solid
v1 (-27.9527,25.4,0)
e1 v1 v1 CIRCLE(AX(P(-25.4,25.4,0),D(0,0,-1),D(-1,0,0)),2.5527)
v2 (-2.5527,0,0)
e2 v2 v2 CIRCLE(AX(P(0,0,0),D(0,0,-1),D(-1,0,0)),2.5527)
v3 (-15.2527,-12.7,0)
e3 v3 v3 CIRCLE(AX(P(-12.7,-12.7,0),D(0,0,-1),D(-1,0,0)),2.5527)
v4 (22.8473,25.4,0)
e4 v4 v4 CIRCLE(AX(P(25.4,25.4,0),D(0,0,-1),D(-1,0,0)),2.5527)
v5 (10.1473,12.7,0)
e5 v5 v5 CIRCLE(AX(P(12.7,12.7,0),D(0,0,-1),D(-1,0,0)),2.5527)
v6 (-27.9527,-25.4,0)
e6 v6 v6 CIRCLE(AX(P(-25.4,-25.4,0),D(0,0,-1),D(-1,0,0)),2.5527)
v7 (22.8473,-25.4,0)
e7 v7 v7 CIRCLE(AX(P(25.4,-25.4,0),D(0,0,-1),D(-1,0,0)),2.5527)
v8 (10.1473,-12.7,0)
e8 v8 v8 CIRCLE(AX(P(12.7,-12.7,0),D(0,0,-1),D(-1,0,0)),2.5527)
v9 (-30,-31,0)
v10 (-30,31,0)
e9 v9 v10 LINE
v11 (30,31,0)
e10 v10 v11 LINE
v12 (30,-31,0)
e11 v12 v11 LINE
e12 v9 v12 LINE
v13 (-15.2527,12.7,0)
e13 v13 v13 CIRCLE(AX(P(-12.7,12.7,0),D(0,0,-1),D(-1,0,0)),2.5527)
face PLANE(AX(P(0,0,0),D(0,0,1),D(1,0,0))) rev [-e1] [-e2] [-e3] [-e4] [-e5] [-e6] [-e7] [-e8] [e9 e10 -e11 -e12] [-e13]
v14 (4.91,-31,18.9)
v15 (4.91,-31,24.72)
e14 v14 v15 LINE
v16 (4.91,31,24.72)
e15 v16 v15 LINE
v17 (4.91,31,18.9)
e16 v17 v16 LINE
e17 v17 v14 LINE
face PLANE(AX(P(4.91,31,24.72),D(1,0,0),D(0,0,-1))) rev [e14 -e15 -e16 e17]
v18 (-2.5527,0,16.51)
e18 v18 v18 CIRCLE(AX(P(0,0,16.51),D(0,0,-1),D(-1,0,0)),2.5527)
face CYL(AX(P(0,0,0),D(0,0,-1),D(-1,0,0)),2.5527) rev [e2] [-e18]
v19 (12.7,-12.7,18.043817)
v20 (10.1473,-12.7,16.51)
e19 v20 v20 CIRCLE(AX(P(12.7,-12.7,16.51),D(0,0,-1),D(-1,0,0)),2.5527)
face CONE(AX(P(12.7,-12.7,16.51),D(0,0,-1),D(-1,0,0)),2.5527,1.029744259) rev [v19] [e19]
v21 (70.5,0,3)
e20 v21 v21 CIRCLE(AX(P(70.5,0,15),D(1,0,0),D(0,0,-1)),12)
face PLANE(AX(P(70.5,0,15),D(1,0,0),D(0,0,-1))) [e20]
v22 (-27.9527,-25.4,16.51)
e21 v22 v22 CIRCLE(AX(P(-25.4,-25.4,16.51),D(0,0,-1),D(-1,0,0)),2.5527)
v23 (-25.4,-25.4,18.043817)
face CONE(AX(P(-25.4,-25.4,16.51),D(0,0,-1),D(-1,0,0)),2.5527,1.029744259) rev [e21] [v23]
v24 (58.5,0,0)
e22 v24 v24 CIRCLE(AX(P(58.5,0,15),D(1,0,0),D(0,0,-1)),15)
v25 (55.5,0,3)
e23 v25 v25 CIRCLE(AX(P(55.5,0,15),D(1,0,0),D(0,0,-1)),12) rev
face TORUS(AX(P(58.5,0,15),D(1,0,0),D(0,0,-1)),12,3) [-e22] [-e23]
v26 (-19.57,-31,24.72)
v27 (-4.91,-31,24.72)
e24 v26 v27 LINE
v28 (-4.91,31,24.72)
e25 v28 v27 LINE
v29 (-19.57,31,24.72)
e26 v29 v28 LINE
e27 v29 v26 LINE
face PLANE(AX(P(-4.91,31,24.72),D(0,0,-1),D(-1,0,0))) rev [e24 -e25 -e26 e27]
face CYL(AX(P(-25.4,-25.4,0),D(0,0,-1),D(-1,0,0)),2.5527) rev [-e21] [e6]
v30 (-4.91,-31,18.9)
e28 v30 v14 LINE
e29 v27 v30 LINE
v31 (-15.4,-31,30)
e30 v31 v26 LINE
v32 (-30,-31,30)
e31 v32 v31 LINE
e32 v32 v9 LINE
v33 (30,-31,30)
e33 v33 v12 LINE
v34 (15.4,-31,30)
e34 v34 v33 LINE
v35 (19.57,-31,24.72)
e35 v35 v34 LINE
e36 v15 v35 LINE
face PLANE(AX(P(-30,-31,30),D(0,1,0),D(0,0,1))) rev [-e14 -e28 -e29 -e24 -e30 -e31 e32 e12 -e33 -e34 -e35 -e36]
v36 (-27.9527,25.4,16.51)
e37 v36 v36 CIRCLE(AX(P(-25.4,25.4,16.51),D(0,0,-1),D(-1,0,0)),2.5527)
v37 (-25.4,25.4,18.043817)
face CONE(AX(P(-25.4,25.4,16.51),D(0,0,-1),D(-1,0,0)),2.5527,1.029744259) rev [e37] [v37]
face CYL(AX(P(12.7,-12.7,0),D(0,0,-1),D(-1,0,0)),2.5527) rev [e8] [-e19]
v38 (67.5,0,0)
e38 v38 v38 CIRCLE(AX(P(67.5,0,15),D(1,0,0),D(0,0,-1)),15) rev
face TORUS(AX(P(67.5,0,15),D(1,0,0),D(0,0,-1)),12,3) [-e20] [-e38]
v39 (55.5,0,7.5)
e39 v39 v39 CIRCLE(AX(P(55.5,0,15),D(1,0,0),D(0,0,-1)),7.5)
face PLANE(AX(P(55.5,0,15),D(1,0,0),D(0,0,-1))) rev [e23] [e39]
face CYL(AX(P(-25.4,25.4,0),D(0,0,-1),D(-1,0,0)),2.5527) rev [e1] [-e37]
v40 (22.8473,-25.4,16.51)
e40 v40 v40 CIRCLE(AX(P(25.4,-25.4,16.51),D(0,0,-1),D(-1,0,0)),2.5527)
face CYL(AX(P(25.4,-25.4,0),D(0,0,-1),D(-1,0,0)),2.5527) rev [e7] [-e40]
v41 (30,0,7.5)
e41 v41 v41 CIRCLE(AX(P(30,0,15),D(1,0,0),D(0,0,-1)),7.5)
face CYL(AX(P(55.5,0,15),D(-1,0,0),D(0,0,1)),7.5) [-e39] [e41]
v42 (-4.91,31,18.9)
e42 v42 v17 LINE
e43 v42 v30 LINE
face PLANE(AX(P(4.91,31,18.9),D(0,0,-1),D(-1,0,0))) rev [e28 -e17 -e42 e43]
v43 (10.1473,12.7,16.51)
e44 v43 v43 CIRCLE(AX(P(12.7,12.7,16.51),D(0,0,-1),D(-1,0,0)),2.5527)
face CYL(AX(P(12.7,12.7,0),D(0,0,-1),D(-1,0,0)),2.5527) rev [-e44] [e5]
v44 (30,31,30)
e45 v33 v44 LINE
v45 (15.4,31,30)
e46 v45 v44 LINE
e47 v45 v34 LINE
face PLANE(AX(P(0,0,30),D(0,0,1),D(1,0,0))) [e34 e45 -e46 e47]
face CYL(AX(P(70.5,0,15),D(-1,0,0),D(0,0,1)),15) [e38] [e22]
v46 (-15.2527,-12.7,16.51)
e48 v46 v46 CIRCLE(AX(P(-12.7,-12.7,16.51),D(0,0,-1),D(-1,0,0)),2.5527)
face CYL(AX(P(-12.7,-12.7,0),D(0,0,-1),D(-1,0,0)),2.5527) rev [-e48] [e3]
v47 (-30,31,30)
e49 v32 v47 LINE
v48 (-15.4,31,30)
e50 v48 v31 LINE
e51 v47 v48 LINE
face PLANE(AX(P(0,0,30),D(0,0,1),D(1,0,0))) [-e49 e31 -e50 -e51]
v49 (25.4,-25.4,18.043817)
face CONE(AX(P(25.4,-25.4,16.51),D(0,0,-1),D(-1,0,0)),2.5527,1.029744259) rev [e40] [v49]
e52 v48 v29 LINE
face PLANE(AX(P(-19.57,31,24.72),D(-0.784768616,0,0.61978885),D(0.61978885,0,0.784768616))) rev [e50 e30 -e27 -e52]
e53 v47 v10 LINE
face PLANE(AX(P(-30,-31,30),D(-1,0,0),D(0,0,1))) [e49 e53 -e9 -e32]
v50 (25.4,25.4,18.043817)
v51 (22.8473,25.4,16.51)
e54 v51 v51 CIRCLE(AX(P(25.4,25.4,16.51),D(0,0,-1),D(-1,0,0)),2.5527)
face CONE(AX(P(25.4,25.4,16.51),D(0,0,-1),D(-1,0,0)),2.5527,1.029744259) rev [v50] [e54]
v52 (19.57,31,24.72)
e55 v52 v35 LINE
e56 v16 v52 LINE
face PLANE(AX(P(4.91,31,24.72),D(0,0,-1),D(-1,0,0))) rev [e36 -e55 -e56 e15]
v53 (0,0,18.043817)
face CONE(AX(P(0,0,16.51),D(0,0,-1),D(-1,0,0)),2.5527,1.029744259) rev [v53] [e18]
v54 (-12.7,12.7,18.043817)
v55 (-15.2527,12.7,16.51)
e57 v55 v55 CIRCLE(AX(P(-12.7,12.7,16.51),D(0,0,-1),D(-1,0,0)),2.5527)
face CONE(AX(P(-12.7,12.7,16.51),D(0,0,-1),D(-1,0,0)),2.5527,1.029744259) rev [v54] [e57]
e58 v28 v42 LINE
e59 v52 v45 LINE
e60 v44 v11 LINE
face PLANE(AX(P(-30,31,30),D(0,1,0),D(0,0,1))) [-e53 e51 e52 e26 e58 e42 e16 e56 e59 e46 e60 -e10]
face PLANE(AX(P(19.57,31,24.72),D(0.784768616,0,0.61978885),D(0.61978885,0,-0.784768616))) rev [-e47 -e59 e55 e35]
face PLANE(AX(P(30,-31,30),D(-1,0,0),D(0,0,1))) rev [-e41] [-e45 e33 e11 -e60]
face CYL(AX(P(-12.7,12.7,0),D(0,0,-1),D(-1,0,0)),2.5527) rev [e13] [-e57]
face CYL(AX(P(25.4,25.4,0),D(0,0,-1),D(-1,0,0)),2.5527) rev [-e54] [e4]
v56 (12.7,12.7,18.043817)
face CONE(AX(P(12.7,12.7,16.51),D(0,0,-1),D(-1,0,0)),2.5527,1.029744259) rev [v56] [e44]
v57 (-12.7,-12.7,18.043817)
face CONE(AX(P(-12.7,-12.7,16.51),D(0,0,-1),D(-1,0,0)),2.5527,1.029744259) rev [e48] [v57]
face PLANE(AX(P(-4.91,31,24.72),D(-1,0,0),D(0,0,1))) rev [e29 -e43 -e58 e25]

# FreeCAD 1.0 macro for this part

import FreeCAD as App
import Part
import Sketcher

V = App.Vector


def edges_at(feature, points):
    """Names of the edges that pass closest to the given points."""
    edges = feature.Shape.Edges
    near = lambda p: min(range(len(edges)), key=lambda i: edges[i].distToShape(Part.Vertex(*p))[0])
    return sorted({f"Edge{near(p) + 1}" for p in points})

doc = App.newDocument("Part")
body = doc.addObject("PartDesign::Body", "Body")

sketch1 = body.newObject("Sketcher::SketchObject", "Sketch")
sketch1.AttachmentSupport = (doc.getObject("XY_Plane"), [""])
sketch1.MapMode = "FlatFace"
sketch1.addGeometry(Part.LineSegment(V(-30, 31, 0), V(-30, -31, 0)), False)
sketch1.addGeometry(Part.LineSegment(V(-30, -31, 0), V(30, -31, 0)), False)
sketch1.addGeometry(Part.LineSegment(V(30, -31, 0), V(30, 31, 0)), False)
sketch1.addGeometry(Part.LineSegment(V(30, 31, 0), V(-30, 31, 0)), False)
sketch1.addConstraint(Sketcher.Constraint("Coincident", 0, 2, 1, 1))
sketch1.addConstraint(Sketcher.Constraint("Coincident", 1, 2, 2, 1))
sketch1.addConstraint(Sketcher.Constraint("Coincident", 2, 2, 3, 1))
sketch1.addConstraint(Sketcher.Constraint("Coincident", 3, 2, 0, 1))
sketch1.addConstraint(Sketcher.Constraint("Vertical", 0))
sketch1.addConstraint(Sketcher.Constraint("Horizontal", 1))
sketch1.addConstraint(Sketcher.Constraint("Vertical", 2))
sketch1.addConstraint(Sketcher.Constraint("Horizontal", 3))
sketch1.addConstraint(Sketcher.Constraint("Symmetric", 0, 2, 2, 2, -1, 1))
sketch1.addConstraint(Sketcher.Constraint("DistanceX", 1, 1, 1, 2, 60.0))
sketch1.addConstraint(Sketcher.Constraint("DistanceY", 0, 2, 0, 1, 62.0))
pad1 = body.newObject("PartDesign::Pad", "Pad")
pad1.Profile = sketch1
pad1.Length = 30

sketch2 = body.newObject("Sketcher::SketchObject", "Sketch001")
sketch2.AttachmentSupport = (doc.getObject("YZ_Plane"), [""])
sketch2.MapMode = "FlatFace"
sketch2.AttachmentOffset = App.Placement(V(0, 0, 30), App.Rotation())
sketch2.addGeometry(Part.Circle(V(0, 15, 0), V(0, 0, 1), 8), False)
sketch2.addConstraint(Sketcher.Constraint("PointOnObject", 0, 3, -2))
sketch2.addConstraint(Sketcher.Constraint("Diameter", 0, 15.0))
sketch2.addConstraint(Sketcher.Constraint("DistanceY", -1, 1, 0, 3, 15.0))
pad2 = body.newObject("PartDesign::Pad", "Pad001")
pad2.Profile = sketch2
pad2.Length = 25.5

sketch3 = body.newObject("Sketcher::SketchObject", "Sketch002")
sketch3.AttachmentSupport = (doc.getObject("YZ_Plane"), [""])
sketch3.MapMode = "FlatFace"
sketch3.AttachmentOffset = App.Placement(V(0, 0, 55.5), App.Rotation())
sketch3.addGeometry(Part.Circle(V(0, 15, 0), V(0, 0, 1), 15), False)
sketch3.addConstraint(Sketcher.Constraint("PointOnObject", 0, 3, -2))
sketch3.addConstraint(Sketcher.Constraint("Diameter", 0, 30.0))
sketch3.addConstraint(Sketcher.Constraint("DistanceY", -1, 1, 0, 3, 15.0))
pad3 = body.newObject("PartDesign::Pad", "Pad002")
pad3.Profile = sketch3
pad3.Length = 15
doc.recompute()

fillet = body.newObject("PartDesign::Fillet", "Fillet")
fillet.Base = (pad3, edges_at(pad3, [(55.5, 0, 30), (70.5, 0, 30)]))
fillet.Radius = 3

sketch4 = body.newObject("Sketcher::SketchObject", "Sketch003")
sketch4.AttachmentSupport = (doc.getObject("XY_Plane"), [""])
sketch4.MapMode = "FlatFace"
sketch4.addGeometry(Part.LineSegment(V(-30, 31, 0), V(-30, -31, 0)), False)
sketch4.addGeometry(Part.LineSegment(V(-30, -31, 0), V(30, -31, 0)), False)
sketch4.addGeometry(Part.LineSegment(V(30, -31, 0), V(30, 31, 0)), False)
sketch4.addGeometry(Part.LineSegment(V(30, 31, 0), V(-30, 31, 0)), False)
sketch4.addGeometry(Part.Circle(V(-25.4, -25.4, 0), V(0, 0, 1), 3.2), False)
sketch4.addGeometry(Part.Circle(V(-12.7, -12.7, 0), V(0, 0, 1), 3.2), False)
sketch4.addGeometry(Part.Circle(V(25.4, -25.4, 0), V(0, 0, 1), 3.2), False)
sketch4.addGeometry(Part.Circle(V(12.7, -12.7, 0), V(0, 0, 1), 3.2), False)
sketch4.addGeometry(Part.Circle(V(-12.7, 12.7, 0), V(0, 0, 1), 3.2), False)
sketch4.addGeometry(Part.Circle(V(-25.4, 25.4, 0), V(0, 0, 1), 3.2), False)
sketch4.addGeometry(Part.Circle(V(0, 0, 0), V(0, 0, 1), 3.2), False)
sketch4.addGeometry(Part.Circle(V(12.7, 12.7, 0), V(0, 0, 1), 3.2), False)
sketch4.addGeometry(Part.Circle(V(25.4, 25.4, 0), V(0, 0, 1), 3.2), False)
sketch4.addConstraint(Sketcher.Constraint("Coincident", 0, 2, 1, 1))
sketch4.addConstraint(Sketcher.Constraint("Coincident", 1, 2, 2, 1))
sketch4.addConstraint(Sketcher.Constraint("Coincident", 2, 2, 3, 1))
sketch4.addConstraint(Sketcher.Constraint("Coincident", 3, 2, 0, 1))
sketch4.addConstraint(Sketcher.Constraint("Vertical", 0))
sketch4.addConstraint(Sketcher.Constraint("Horizontal", 1))
sketch4.addConstraint(Sketcher.Constraint("Vertical", 2))
sketch4.addConstraint(Sketcher.Constraint("Horizontal", 3))
sketch4.addConstraint(Sketcher.Constraint("Coincident", 10, 3, -1, 1))
sketch4.addConstraint(Sketcher.Constraint("Equal", 4, 5))
sketch4.addConstraint(Sketcher.Constraint("Equal", 5, 6))
sketch4.addConstraint(Sketcher.Constraint("Equal", 6, 7))
sketch4.addConstraint(Sketcher.Constraint("Equal", 7, 8))
sketch4.addConstraint(Sketcher.Constraint("Equal", 8, 9))
sketch4.addConstraint(Sketcher.Constraint("Equal", 9, 10))
sketch4.addConstraint(Sketcher.Constraint("Equal", 10, 11))
sketch4.addConstraint(Sketcher.Constraint("Equal", 11, 12))
sketch4.addConstraint(Sketcher.Constraint("Symmetric", 7, 3, 8, 3, -1, 1))
sketch4.addConstraint(Sketcher.Constraint("Symmetric", 6, 3, 9, 3, -1, 1))
sketch4.addConstraint(Sketcher.Constraint("Symmetric", 5, 3, 11, 3, -1, 1))
sketch4.addConstraint(Sketcher.Constraint("Symmetric", 4, 3, 12, 3, -1, 1))
sketch4.addConstraint(Sketcher.Constraint("Symmetric", 0, 2, 2, 2, -1, 1))
sketch4.addConstraint(Sketcher.Constraint("Symmetric", 4, 3, 6, 3, -2))
sketch4.addConstraint(Sketcher.Constraint("Symmetric", 5, 3, 7, 3, -2))
sketch4.addConstraint(Sketcher.Constraint("Diameter", 4, 6.35))
sketch4.addConstraint(Sketcher.Constraint("DistanceX", 1, 1, 1, 2, 60.0))
sketch4.addConstraint(Sketcher.Constraint("DistanceY", 0, 2, 0, 1, 62.0))
sketch4.addConstraint(Sketcher.Constraint("DistanceX", 4, 3, -1, 1, 25.4))
sketch4.addConstraint(Sketcher.Constraint("DistanceY", 4, 3, -1, 1, 25.4))
sketch4.addConstraint(Sketcher.Constraint("DistanceX", 5, 3, -1, 1, 12.7))
sketch4.addConstraint(Sketcher.Constraint("DistanceY", 5, 3, -1, 1, 12.7))
pad4 = body.newObject("PartDesign::Pad", "Pad003")
pad4.Profile = sketch4
pad4.Length = 20

sketch5 = body.newObject("Sketcher::SketchObject", "Sketch004")
sketch5.AttachmentSupport = (doc.getObject("XY_Plane"), [""])
sketch5.MapMode = "FlatFace"
sketch5.addGeometry(Part.Circle(V(25.4, 25.4, 0), V(0, 0, 1), 2.6), False)
sketch5.addGeometry(Part.Circle(V(-25.4, 25.4, 0), V(0, 0, 1), 2.6), False)
sketch5.addGeometry(Part.Circle(V(-25.4, -25.4, 0), V(0, 0, 1), 2.6), False)
sketch5.addGeometry(Part.Circle(V(25.4, -25.4, 0), V(0, 0, 1), 2.6), False)
sketch5.addConstraint(Sketcher.Constraint("Equal", 0, 1))
sketch5.addConstraint(Sketcher.Constraint("Equal", 1, 2))
sketch5.addConstraint(Sketcher.Constraint("Equal", 2, 3))
sketch5.addConstraint(Sketcher.Constraint("Symmetric", 0, 3, 2, 3, -1, 1))
sketch5.addConstraint(Sketcher.Constraint("Symmetric", 1, 3, 3, 3, -1, 1))
sketch5.addConstraint(Sketcher.Constraint("Symmetric", 0, 3, 1, 3, -2))
sketch5.addConstraint(Sketcher.Constraint("Diameter", 0, 5.1054))
sketch5.addConstraint(Sketcher.Constraint("DistanceX", -1, 1, 0, 3, 25.4))
sketch5.addConstraint(Sketcher.Constraint("DistanceY", -1, 1, 0, 3, 25.4))
doc.recompute()
hole = body.newObject("PartDesign::Hole", "Hole")
hole.Profile = sketch5
hole.ThreadType = "None"
hole.Diameter = 5.1054
hole.DepthType = "Dimension"
hole.Depth = 16.51
hole.DrillPoint = "Angled"
hole.DrillPointAngle = 118
hole.Reversed = True

sketch6 = body.newObject("Sketcher::SketchObject", "Sketch005")
sketch6.AttachmentSupport = (doc.getObject("XY_Plane"), [""])
sketch6.MapMode = "FlatFace"
sketch6.addGeometry(Part.Circle(V(12.7, 12.7, 0), V(0, 0, 1), 2.6), False)
sketch6.addGeometry(Part.Circle(V(0, 0, 0), V(0, 0, 1), 2.6), False)
sketch6.addGeometry(Part.Circle(V(-12.7, 12.7, 0), V(0, 0, 1), 2.6), False)
sketch6.addGeometry(Part.Circle(V(-12.7, -12.7, 0), V(0, 0, 1), 2.6), False)
sketch6.addGeometry(Part.Circle(V(12.7, -12.7, 0), V(0, 0, 1), 2.6), False)
sketch6.addConstraint(Sketcher.Constraint("Coincident", 1, 3, -1, 1))
sketch6.addConstraint(Sketcher.Constraint("Equal", 0, 1))
sketch6.addConstraint(Sketcher.Constraint("Equal", 1, 2))
sketch6.addConstraint(Sketcher.Constraint("Equal", 2, 3))
sketch6.addConstraint(Sketcher.Constraint("Equal", 3, 4))
sketch6.addConstraint(Sketcher.Constraint("Symmetric", 0, 3, 3, 3, -1, 1))
sketch6.addConstraint(Sketcher.Constraint("Symmetric", 2, 3, 4, 3, -1, 1))
sketch6.addConstraint(Sketcher.Constraint("Symmetric", 0, 3, 2, 3, -2))
sketch6.addConstraint(Sketcher.Constraint("Diameter", 0, 5.1054))
sketch6.addConstraint(Sketcher.Constraint("DistanceX", -1, 1, 0, 3, 12.7))
sketch6.addConstraint(Sketcher.Constraint("DistanceY", -1, 1, 0, 3, 12.7))
doc.recompute()
hole2 = body.newObject("PartDesign::Hole", "Hole001")
hole2.Profile = sketch6
hole2.ThreadType = "None"
hole2.Diameter = 5.1054
hole2.DepthType = "Dimension"
hole2.Depth = 16.51
hole2.DrillPoint = "Angled"
hole2.DrillPointAngle = 118
hole2.Reversed = True

sketch7 = body.newObject("Sketcher::SketchObject", "Sketch006")
sketch7.AttachmentSupport = (doc.getObject("XZ_Plane"), [""])
sketch7.MapMode = "FlatFace"
sketch7.AttachmentOffset = App.Placement(V(0, 0, 31), App.Rotation())
sketch7.addGeometry(Part.LineSegment(V(-20, 25, 0), V(-5, 25, 0)), False)
sketch7.addGeometry(Part.LineSegment(V(-5, 25, 0), V(-5, 19, 0)), False)
sketch7.addGeometry(Part.LineSegment(V(-5, 19, 0), V(5, 19, 0)), False)
sketch7.addGeometry(Part.LineSegment(V(5, 19, 0), V(5, 25, 0)), False)
sketch7.addGeometry(Part.LineSegment(V(5, 25, 0), V(20, 25, 0)), False)
sketch7.addGeometry(Part.LineSegment(V(20, 25, 0), V(15, 30, 0)), False)
sketch7.addGeometry(Part.LineSegment(V(15, 30, 0), V(-15, 30, 0)), False)
sketch7.addGeometry(Part.LineSegment(V(-15, 30, 0), V(-20, 25, 0)), False)
sketch7.addConstraint(Sketcher.Constraint("Coincident", 0, 2, 1, 1))
sketch7.addConstraint(Sketcher.Constraint("Coincident", 1, 2, 2, 1))
sketch7.addConstraint(Sketcher.Constraint("Coincident", 2, 2, 3, 1))
sketch7.addConstraint(Sketcher.Constraint("Coincident", 3, 2, 4, 1))
sketch7.addConstraint(Sketcher.Constraint("Coincident", 4, 2, 5, 1))
sketch7.addConstraint(Sketcher.Constraint("Coincident", 5, 2, 6, 1))
sketch7.addConstraint(Sketcher.Constraint("Coincident", 6, 2, 7, 1))
sketch7.addConstraint(Sketcher.Constraint("Coincident", 7, 2, 0, 1))
sketch7.addConstraint(Sketcher.Constraint("Horizontal", 0))
sketch7.addConstraint(Sketcher.Constraint("Vertical", 1))
sketch7.addConstraint(Sketcher.Constraint("Horizontal", 2))
sketch7.addConstraint(Sketcher.Constraint("Vertical", 3))
sketch7.addConstraint(Sketcher.Constraint("Horizontal", 4))
sketch7.addConstraint(Sketcher.Constraint("Horizontal", 6))
sketch7.addConstraint(Sketcher.Constraint("Symmetric", 0, 2, 3, 2, -2))
sketch7.addConstraint(Sketcher.Constraint("Equal", 0, 4))
sketch7.addConstraint(Sketcher.Constraint("Equal", 5, 7))
sketch7.addConstraint(Sketcher.Constraint("DistanceX", 6, 2, 6, 1, 30.8))
sketch7.addConstraint(Sketcher.Constraint("DistanceY", -1, 1, 5, 2, 30.0))
sketch7.addConstraint(Sketcher.Constraint("DistanceX", 0, 1, 0, 2, 14.66))
sketch7.addConstraint(Sketcher.Constraint("DistanceX", 2, 1, 2, 2, 9.82))
sketch7.addConstraint(Sketcher.Constraint("DistanceY", 1, 2, 1, 1, 5.82))
sketch7.addConstraint(Sketcher.Constraint("DistanceY", -1, 1, 1, 2, 18.9))
pocket1 = body.newObject("PartDesign::Pocket", "Pocket")
pocket1.Profile = sketch7
pocket1.Type = "ThroughAll"

doc.recompute()
